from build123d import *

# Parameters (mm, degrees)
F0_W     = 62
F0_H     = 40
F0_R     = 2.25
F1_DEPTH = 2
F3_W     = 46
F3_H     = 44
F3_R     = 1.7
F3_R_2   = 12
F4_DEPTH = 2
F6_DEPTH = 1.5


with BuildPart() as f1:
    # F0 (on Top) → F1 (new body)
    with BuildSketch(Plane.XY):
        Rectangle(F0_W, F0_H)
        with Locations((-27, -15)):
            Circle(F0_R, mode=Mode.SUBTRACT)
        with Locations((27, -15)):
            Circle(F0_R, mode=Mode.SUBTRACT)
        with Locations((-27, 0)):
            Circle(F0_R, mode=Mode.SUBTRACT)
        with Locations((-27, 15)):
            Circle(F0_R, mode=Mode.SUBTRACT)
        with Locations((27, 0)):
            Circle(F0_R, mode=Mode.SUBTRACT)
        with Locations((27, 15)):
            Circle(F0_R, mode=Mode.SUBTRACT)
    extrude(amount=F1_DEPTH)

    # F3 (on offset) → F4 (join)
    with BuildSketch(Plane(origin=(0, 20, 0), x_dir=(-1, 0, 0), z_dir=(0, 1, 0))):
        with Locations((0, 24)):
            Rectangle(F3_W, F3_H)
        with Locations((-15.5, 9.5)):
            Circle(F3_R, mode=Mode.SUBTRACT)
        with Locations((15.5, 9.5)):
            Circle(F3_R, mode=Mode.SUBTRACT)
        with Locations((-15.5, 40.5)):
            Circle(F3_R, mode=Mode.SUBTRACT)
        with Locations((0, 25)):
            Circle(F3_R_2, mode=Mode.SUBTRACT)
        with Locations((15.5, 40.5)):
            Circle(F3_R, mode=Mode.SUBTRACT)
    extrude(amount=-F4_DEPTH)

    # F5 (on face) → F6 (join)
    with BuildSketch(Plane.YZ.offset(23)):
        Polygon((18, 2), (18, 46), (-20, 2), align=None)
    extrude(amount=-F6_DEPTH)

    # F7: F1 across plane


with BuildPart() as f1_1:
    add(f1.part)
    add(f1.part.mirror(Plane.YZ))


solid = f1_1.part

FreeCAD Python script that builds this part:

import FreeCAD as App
import Part
import Sketcher


def add_polygon(sketch, points):
    """Adds a closed chain of lines whose ends are joined by coincident constraints."""
    first, n = sketch.GeometryCount, len(points)
    for a, b in zip(points, points[1:] + points[:1]):
        sketch.addGeometry(Part.LineSegment(App.Vector(*a, 0), App.Vector(*b, 0)), False)
    for i in range(n):
        sketch.addConstraint(Sketcher.Constraint("Coincident", first + i, 2, first + (i + 1) % n, 1))

doc = App.newDocument("Part")
body = doc.addObject("PartDesign::Body", "Body")

# Sketch on XY plane
sketch1 = body.newObject("Sketcher::SketchObject", "Sketch")
sketch1.AttachmentSupport = (doc.getObject("XY_Plane"), [""])
sketch1.MapMode = "FlatFace"
add_polygon(sketch1, [(-31, 20), (-31, -20), (31, -20), (31, 20)])  # lines 0-3
sketch1.addGeometry(Part.Circle(App.Vector(-27, -15, 0), App.Vector(0, 0, 1), 2.2), False)  # 4
sketch1.addGeometry(Part.Circle(App.Vector(27, -15, 0), App.Vector(0, 0, 1), 2.2), False)  # 5
sketch1.addGeometry(Part.Circle(App.Vector(-27, 0, 0), App.Vector(0, 0, 1), 2.2), False)  # 6
sketch1.addGeometry(Part.Circle(App.Vector(-27, 15, 0), App.Vector(0, 0, 1), 2.2), False)  # 7
sketch1.addGeometry(Part.Circle(App.Vector(27, 0, 0), App.Vector(0, 0, 1), 2.2), False)  # 8
sketch1.addGeometry(Part.Circle(App.Vector(27, 15, 0), App.Vector(0, 0, 1), 2.2), False)  # 9
sketch1.addConstraint(Sketcher.Constraint("Vertical", 0))
sketch1.addConstraint(Sketcher.Constraint("Horizontal", 1))
sketch1.addConstraint(Sketcher.Constraint("Vertical", 2))
sketch1.addConstraint(Sketcher.Constraint("Horizontal", 3))
sketch1.addConstraint(Sketcher.Constraint("Equal", 4, 5))
sketch1.addConstraint(Sketcher.Constraint("Equal", 5, 6))
sketch1.addConstraint(Sketcher.Constraint("Equal", 6, 7))
sketch1.addConstraint(Sketcher.Constraint("Equal", 7, 8))
sketch1.addConstraint(Sketcher.Constraint("Equal", 8, 9))
sketch1.addConstraint(Sketcher.Constraint("Symmetric", 5, 3, 7, 3, -1, 1))
sketch1.addConstraint(Sketcher.Constraint("Symmetric", 6, 3, 8, 3, -1, 1))
sketch1.addConstraint(Sketcher.Constraint("Symmetric", 4, 3, 9, 3, -1, 1))
sketch1.addConstraint(Sketcher.Constraint("Symmetric", 0, 2, 2, 2, -1, 1))
sketch1.addConstraint(Sketcher.Constraint("Symmetric", 4, 3, 5, 3, -2))
sketch1.addConstraint(Sketcher.Constraint("PointOnObject", 6, 3, -1))
sketch1.addConstraint(Sketcher.Constraint("Vertical", 4, 3, 6, 3))
sketch1.addConstraint(Sketcher.Constraint("Diameter", 4, 4.5))
sketch1.addConstraint(Sketcher.Constraint("DistanceX", 1, 1, 1, 2, 62.0))
sketch1.addConstraint(Sketcher.Constraint("DistanceY", 0, 2, 0, 1, 40.0))
sketch1.addConstraint(Sketcher.Constraint("DistanceX", 4, 3, -1, 1, 27.0))
sketch1.addConstraint(Sketcher.Constraint("DistanceY", 4, 3, -1, 1, 15.0))
pad1 = body.newObject("PartDesign::Pad", "Pad")
pad1.Profile = sketch1
pad1.Length = 2

# Sketch on XZ plane
sketch2 = body.newObject("Sketcher::SketchObject", "Sketch001")
sketch2.AttachmentSupport = (doc.getObject("XZ_Plane"), [""])
sketch2.MapMode = "FlatFace"
sketch2.AttachmentOffset = App.Placement(App.Vector(0, 0, -20), App.Rotation())
add_polygon(sketch2, [(23, 46), (23, 2), (-23, 2), (-23, 46)])  # lines 0-3
sketch2.addGeometry(Part.Circle(App.Vector(15.5, 9.5, 0), App.Vector(0, 0, 1), 1.7), False)  # 4
sketch2.addGeometry(Part.Circle(App.Vector(-15.5, 9.5, 0), App.Vector(0, 0, 1), 1.7), False)  # 5
sketch2.addGeometry(Part.Circle(App.Vector(15.5, 40.5, 0), App.Vector(0, 0, 1), 1.7), False)  # 6
sketch2.addGeometry(Part.Circle(App.Vector(0, 25, 0), App.Vector(0, 0, 1), 12), False)  # 7
sketch2.addGeometry(Part.Circle(App.Vector(-15.5, 40.5, 0), App.Vector(0, 0, 1), 1.7), False)  # 8
sketch2.addConstraint(Sketcher.Constraint("Vertical", 0))
sketch2.addConstraint(Sketcher.Constraint("Horizontal", 1))
sketch2.addConstraint(Sketcher.Constraint("Vertical", 2))
sketch2.addConstraint(Sketcher.Constraint("Horizontal", 3))
sketch2.addConstraint(Sketcher.Constraint("Equal", 4, 5))
sketch2.addConstraint(Sketcher.Constraint("Equal", 5, 6))
sketch2.addConstraint(Sketcher.Constraint("Equal", 6, 8))
sketch2.addConstraint(Sketcher.Constraint("Symmetric", 4, 3, 5, 3, -2))
sketch2.addConstraint(Sketcher.Constraint("Symmetric", 6, 3, 8, 3, -2))
sketch2.addConstraint(Sketcher.Constraint("PointOnObject", 7, 3, -2))
sketch2.addConstraint(Sketcher.Constraint("Vertical", 4, 3, 6, 3))
sketch2.addConstraint(Sketcher.Constraint("Diameter", 7, 24.0))
sketch2.addConstraint(Sketcher.Constraint("Diameter", 4, 3.4))
sketch2.addConstraint(Sketcher.Constraint("DistanceX", 1, 2, 1, 1, 46.0))
sketch2.addConstraint(Sketcher.Constraint("DistanceY", 0, 2, 0, 1, 44.0))
sketch2.addConstraint(Sketcher.Constraint("DistanceY", -1, 1, 7, 3, 25.0))
sketch2.addConstraint(Sketcher.Constraint("DistanceX", -1, 1, 0, 2, 23.0))
sketch2.addConstraint(Sketcher.Constraint("DistanceY", -1, 1, 0, 2, 2.0))
sketch2.addConstraint(Sketcher.Constraint("DistanceX", 5, 3, 4, 3, 31.0))
sketch2.addConstraint(Sketcher.Constraint("DistanceY", 4, 3, 6, 3, 31.0))
sketch2.addConstraint(Sketcher.Constraint("DistanceY", -1, 1, 4, 3, 9.5))
pad2 = body.newObject("PartDesign::Pad", "Pad001")
pad2.Profile = sketch2
pad2.Length = 2

# Sketch on YZ plane
sketch3 = body.newObject("Sketcher::SketchObject", "Sketch002")
sketch3.AttachmentSupport = (doc.getObject("YZ_Plane"), [""])
sketch3.MapMode = "FlatFace"
sketch3.AttachmentOffset = App.Placement(App.Vector(0, 0, 23), App.Rotation())
add_polygon(sketch3, [(18, 2), (18, 46), (-20, 2)])  # lines 0-2
sketch3.addConstraint(Sketcher.Constraint("Vertical", 0))
sketch3.addConstraint(Sketcher.Constraint("Horizontal", 2))
sketch3.addConstraint(Sketcher.Constraint("DistanceX", 2, 1, 2, 2, 38.0))
sketch3.addConstraint(Sketcher.Constraint("DistanceY", 0, 1, 0, 2, 44.0))
sketch3.addConstraint(Sketcher.Constraint("DistanceX", -1, 1, 0, 2, 18.0))
sketch3.addConstraint(Sketcher.Constraint("DistanceY", -1, 1, 0, 2, 46.0))
pad3 = body.newObject("PartDesign::Pad", "Pad002")
pad3.Profile = sketch3
pad3.Length = 1.5
pad3.Reversed = True
body2 = doc.addObject("PartDesign::Body", "Body001")
doc.recompute()

body2.BaseFeature = body
doc.recompute()

mirroring = doc.addObject("Part::Mirroring", "Mirroring")
mirroring.Source = body
mirroring.Base = App.Vector(0, 0, 0)
mirroring.Normal = App.Vector(1, 0, 0)
body3 = doc.addObject("PartDesign::Body", "Body002")
body3.BaseFeature = mirroring
boolean = body2.newObject("PartDesign::Boolean", "Boolean")
boolean.Type = "Fuse"
boolean.addObjects([body3])
doc.recompute()
mirroring.Visibility = False

doc.recompute()
